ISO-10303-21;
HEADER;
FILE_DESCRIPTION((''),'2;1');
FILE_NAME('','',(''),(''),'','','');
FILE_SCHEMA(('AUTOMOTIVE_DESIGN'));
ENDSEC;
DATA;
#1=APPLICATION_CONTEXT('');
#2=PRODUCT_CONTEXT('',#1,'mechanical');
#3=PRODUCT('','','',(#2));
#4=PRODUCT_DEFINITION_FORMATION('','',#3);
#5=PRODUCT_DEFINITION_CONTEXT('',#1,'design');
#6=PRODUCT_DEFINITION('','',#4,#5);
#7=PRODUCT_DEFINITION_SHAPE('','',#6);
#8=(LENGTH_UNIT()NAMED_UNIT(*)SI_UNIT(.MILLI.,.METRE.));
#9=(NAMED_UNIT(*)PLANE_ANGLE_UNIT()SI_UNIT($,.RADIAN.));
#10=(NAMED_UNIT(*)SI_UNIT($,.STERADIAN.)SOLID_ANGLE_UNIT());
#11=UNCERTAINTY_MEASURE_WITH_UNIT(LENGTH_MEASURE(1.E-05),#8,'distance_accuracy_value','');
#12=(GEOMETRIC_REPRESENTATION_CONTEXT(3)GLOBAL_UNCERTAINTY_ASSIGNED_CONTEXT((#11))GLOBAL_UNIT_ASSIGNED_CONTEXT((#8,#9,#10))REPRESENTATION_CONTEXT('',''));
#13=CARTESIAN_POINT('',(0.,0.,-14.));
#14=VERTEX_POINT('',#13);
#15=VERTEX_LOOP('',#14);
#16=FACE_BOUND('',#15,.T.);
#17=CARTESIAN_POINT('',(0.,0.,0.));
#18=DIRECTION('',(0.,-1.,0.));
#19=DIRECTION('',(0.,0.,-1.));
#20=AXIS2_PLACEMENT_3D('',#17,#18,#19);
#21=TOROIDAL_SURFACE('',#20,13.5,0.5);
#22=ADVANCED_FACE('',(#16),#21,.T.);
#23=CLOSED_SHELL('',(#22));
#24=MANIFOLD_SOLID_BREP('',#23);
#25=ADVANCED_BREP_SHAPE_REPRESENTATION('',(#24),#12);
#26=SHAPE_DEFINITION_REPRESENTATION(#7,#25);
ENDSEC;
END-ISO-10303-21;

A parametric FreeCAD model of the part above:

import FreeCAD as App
import Part
import Sketcher
from FreeCAD import Vector

doc = App.newDocument("Part")
body = doc.addObject("PartDesign::Body", "Body")

# Sketch on XY plane
sketch1 = doc.addObject("Sketcher::SketchObject", "Sketch")
body.addObject(sketch1)
sketch1.AttachmentSupport = (doc.XY_Plane, [""])
sketch1.MapMode = "FlatFace"
sketch1.addGeometry(Part.Circle(Vector(13.5, 0, 0), Vector(0, 0, 1), 0.5), False)
sketch1.addConstraint(Sketcher.Constraint("PointOnObject", 0, 3, -1))
sketch1.addConstraint(Sketcher.Constraint("Diameter", 0, 1.0))
sketch1.addConstraint(Sketcher.Constraint("DistanceX", -1, 1, 0, 3, 13.5))
revolution = doc.addObject("PartDesign::Revolution", "Revolution")
body.addObject(revolution)
revolution.Profile = sketch1
revolution.ReferenceAxis = (sketch1, ["V_Axis"])
revolution.Angle = 360

doc.recompute()
